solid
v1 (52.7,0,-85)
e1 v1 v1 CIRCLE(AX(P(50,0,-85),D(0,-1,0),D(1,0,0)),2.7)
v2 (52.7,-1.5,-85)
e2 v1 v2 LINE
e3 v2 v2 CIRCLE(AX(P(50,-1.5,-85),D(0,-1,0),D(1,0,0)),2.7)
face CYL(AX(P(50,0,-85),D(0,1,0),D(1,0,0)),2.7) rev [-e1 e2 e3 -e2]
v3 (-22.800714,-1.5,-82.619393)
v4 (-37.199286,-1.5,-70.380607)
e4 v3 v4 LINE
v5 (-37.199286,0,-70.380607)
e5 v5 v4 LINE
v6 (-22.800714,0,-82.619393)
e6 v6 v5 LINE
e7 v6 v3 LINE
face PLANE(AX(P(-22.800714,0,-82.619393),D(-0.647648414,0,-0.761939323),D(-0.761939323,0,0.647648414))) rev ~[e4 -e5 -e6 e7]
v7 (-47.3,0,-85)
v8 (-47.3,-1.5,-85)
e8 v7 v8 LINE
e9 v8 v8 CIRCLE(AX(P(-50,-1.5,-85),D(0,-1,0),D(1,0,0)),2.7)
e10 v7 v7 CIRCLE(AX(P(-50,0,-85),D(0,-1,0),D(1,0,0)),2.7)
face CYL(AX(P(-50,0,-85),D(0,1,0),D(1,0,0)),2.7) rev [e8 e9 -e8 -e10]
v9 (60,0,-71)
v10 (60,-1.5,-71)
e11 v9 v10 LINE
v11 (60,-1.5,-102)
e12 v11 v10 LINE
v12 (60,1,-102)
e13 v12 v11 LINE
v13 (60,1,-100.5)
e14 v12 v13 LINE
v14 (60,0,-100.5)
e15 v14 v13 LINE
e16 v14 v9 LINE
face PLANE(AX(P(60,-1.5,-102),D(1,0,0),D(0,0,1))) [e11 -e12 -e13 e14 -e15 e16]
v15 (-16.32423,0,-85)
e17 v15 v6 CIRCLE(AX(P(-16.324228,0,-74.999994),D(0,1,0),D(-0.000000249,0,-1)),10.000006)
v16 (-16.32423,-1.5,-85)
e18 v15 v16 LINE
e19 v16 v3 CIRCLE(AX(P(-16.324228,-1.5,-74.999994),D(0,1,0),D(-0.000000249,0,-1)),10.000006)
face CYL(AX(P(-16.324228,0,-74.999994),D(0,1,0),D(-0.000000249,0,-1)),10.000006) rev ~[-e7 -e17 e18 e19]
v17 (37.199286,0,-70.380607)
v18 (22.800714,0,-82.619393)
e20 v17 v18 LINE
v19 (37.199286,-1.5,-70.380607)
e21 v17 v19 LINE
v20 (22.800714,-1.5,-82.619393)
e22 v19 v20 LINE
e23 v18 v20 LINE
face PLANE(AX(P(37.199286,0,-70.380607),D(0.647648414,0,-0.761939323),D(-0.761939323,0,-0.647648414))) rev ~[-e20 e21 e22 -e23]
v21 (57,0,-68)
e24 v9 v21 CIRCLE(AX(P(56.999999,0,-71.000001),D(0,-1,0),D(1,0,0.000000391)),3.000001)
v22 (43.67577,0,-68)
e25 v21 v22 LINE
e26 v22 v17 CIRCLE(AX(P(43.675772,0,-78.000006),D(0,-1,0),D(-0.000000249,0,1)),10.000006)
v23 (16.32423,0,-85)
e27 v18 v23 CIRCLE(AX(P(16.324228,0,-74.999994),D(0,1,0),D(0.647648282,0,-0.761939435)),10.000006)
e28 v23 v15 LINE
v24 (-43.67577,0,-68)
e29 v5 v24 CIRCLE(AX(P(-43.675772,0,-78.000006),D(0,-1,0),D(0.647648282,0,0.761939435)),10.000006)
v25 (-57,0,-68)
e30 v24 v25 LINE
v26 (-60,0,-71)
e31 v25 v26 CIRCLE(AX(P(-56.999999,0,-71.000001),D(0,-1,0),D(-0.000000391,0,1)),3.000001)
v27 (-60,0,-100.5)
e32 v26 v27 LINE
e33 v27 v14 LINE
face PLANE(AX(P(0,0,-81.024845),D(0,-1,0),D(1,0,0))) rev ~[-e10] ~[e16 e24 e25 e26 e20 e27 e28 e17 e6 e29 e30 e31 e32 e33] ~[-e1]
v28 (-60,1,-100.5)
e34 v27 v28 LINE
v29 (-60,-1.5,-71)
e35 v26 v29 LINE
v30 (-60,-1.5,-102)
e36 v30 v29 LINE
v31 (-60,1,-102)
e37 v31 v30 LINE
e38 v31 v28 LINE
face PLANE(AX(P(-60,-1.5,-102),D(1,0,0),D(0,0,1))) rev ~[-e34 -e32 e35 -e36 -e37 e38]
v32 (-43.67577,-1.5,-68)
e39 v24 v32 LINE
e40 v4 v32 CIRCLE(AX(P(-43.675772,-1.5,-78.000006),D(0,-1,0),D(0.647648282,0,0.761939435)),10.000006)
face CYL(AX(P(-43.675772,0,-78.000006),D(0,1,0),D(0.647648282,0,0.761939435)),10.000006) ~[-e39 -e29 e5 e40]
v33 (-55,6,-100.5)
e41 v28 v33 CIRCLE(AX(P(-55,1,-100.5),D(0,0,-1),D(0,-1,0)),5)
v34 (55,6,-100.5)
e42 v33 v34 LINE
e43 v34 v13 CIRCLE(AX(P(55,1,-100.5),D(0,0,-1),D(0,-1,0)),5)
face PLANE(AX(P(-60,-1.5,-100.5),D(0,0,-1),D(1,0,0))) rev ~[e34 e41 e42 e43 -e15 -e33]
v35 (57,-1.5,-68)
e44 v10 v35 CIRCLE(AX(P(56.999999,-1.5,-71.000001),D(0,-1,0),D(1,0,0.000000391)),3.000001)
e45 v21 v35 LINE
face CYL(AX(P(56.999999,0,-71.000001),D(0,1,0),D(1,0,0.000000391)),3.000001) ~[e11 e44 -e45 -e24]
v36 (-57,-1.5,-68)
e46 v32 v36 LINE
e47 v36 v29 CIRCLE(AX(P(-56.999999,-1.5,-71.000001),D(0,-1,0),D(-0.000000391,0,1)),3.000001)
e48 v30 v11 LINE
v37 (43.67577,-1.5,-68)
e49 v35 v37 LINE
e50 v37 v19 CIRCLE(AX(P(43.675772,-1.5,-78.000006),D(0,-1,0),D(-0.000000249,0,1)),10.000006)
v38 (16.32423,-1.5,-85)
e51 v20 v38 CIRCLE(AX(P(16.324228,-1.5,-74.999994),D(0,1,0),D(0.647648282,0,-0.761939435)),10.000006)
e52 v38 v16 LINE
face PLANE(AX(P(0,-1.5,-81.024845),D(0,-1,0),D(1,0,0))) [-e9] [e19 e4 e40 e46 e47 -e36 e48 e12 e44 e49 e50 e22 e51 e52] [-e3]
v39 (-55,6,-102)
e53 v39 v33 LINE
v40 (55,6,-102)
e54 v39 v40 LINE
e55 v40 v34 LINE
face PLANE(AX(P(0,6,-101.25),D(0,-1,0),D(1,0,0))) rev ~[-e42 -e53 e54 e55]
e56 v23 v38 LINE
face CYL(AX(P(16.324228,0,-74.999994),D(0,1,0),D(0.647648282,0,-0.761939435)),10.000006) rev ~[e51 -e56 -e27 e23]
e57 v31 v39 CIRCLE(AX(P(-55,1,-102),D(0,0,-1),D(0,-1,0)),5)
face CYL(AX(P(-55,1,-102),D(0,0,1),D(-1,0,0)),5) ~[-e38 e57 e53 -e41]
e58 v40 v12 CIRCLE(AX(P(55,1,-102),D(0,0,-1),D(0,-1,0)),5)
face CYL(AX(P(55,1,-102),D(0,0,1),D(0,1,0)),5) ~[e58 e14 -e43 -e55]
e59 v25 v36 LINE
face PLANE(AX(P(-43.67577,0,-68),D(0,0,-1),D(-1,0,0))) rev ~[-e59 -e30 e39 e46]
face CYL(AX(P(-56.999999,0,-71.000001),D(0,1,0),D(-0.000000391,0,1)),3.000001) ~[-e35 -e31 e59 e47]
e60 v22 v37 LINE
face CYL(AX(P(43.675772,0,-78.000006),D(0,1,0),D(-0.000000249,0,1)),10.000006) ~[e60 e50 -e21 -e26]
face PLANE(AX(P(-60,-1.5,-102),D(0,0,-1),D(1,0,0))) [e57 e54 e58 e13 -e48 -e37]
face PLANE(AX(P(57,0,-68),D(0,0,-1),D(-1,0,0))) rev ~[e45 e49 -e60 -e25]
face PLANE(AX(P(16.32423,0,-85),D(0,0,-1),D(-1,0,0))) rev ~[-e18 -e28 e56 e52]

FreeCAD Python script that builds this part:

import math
import FreeCAD as App
import Part
import Sketcher


def edges_at(feature, points):
    """Names of the edges that pass closest to the given points."""
    edges = feature.Shape.Edges
    near = lambda p: min(range(len(edges)), key=lambda i: edges[i].distToShape(Part.Vertex(*p))[0])
    return sorted({f"Edge{near(p) + 1}" for p in points})


def add_polygon(sketch, points):
    """Adds a closed chain of lines whose ends are joined by coincident constraints."""
    first, n = sketch.GeometryCount, len(points)
    for a, b in zip(points, points[1:] + points[:1]):
        sketch.addGeometry(Part.LineSegment(App.Vector(*a, 0), App.Vector(*b, 0)), False)
    for i in range(n):
        sketch.addConstraint(Sketcher.Constraint("Coincident", first + i, 2, first + (i + 1) % n, 1))

doc = App.newDocument("Part")
params = doc.addObject("Spreadsheet::Sheet", "Params")
for row, (alias, value) in enumerate([
    ("sketch1_radius", "3.000001 mm"),
    ("sketch1_diameter", "5.4 mm"),
    ("sketch1_width", "120 mm"),
    ("sketch1_height", "31 mm"),
    ("pad1_length", "1.5 mm"),
    ("sketch2_width", "120 mm"),
    ("sketch2_height", "1.5 mm"),
    ("pad2_length", "7.5 mm"),
    ("fillet_radius", "5 mm"),
], start=1):
    params.set(f"A{row}", alias)
    params.set(f"B{row}", "=" + value)
    params.setAlias(f"B{row}", alias)

body = doc.addObject("PartDesign::Body", "Body")

# Sketch on XZ plane
sketch1 = body.newObject("Sketcher::SketchObject", "Sketch")
sketch1.AttachmentSupport = (doc.getObject("XZ_Plane"), [""])
sketch1.MapMode = "FlatFace"
sketch1.addGeometry(Part.LineSegment(App.Vector(-60, -71, 0), App.Vector(-60, -102, 0)), False)
sketch1.addGeometry(Part.LineSegment(App.Vector(-60, -102, 0), App.Vector(60, -102, 0)), False)
sketch1.addGeometry(Part.LineSegment(App.Vector(60, -102, 0), App.Vector(60, -71, 0)), False)
sketch1.addGeometry(Part.ArcOfCircle(Part.Circle(App.Vector(57, -71, 0), App.Vector(0, 0, 1), 3), math.radians(0), math.radians(90)), False)
sketch1.addGeometry(Part.LineSegment(App.Vector(57, -68, 0), App.Vector(43.7, -68, 0)), False)
sketch1.addGeometry(Part.ArcOfCircle(Part.Circle(App.Vector(43.7, -78, 0), App.Vector(0, 0, 1), 10), math.radians(90), math.radians(130)), False)
sketch1.addGeometry(Part.LineSegment(App.Vector(37.2, -70.4, 0), App.Vector(22.8, -82.6, 0)), False)
sketch1.addGeometry(Part.ArcOfCircle(Part.Circle(App.Vector(16.3, -75, 0), App.Vector(0, 0, 1), 10), math.radians(-90), math.radians(-50)), False)
sketch1.addGeometry(Part.LineSegment(App.Vector(16.3, -85, 0), App.Vector(-16.3, -85, 0)), False)
sketch1.addGeometry(Part.ArcOfCircle(Part.Circle(App.Vector(-16.3, -75, 0), App.Vector(0, 0, 1), 10), math.radians(-130), math.radians(-90)), False)
sketch1.addGeometry(Part.LineSegment(App.Vector(-22.8, -82.6, 0), App.Vector(-37.2, -70.4, 0)), False)
sketch1.addGeometry(Part.ArcOfCircle(Part.Circle(App.Vector(-43.7, -78, 0), App.Vector(0, 0, 1), 10), math.radians(50), math.radians(90)), False)
sketch1.addGeometry(Part.LineSegment(App.Vector(-43.7, -68, 0), App.Vector(-57, -68, 0)), False)
sketch1.addGeometry(Part.ArcOfCircle(Part.Circle(App.Vector(-57, -71, 0), App.Vector(0, 0, 1), 3), math.radians(90), math.radians(180)), False)
sketch1.addGeometry(Part.Circle(App.Vector(-50, -85, 0), App.Vector(0, 0, 1), 2.7), False)
sketch1.addGeometry(Part.Circle(App.Vector(50, -85, 0), App.Vector(0, 0, 1), 2.7), False)
sketch1.addConstraint(Sketcher.Constraint("Coincident", 0, 2, 1, 1))
sketch1.addConstraint(Sketcher.Constraint("Coincident", 1, 2, 2, 1))
sketch1.addConstraint(Sketcher.Constraint("Tangent", 2, 2, 3, 1))
sketch1.addConstraint(Sketcher.Constraint("Tangent", 3, 2, 4, 1))
sketch1.addConstraint(Sketcher.Constraint("Tangent", 4, 2, 5, 1))
sketch1.addConstraint(Sketcher.Constraint("Tangent", 5, 2, 6, 1))
sketch1.addConstraint(Sketcher.Constraint("Tangent", 6, 2, 7, 2))
sketch1.addConstraint(Sketcher.Constraint("Tangent", 7, 1, 8, 1))
sketch1.addConstraint(Sketcher.Constraint("Tangent", 8, 2, 9, 2))
sketch1.addConstraint(Sketcher.Constraint("Tangent", 9, 1, 10, 1))
sketch1.addConstraint(Sketcher.Constraint("Tangent", 10, 2, 11, 1))
sketch1.addConstraint(Sketcher.Constraint("Tangent", 11, 2, 12, 1))
sketch1.addConstraint(Sketcher.Constraint("Tangent", 12, 2, 13, 1))
sketch1.addConstraint(Sketcher.Constraint("Tangent", 13, 2, 0, 1))
sketch1.addConstraint(Sketcher.Constraint("Vertical", 0))
sketch1.addConstraint(Sketcher.Constraint("Horizontal", 1))
sketch1.addConstraint(Sketcher.Constraint("Vertical", 2))
sketch1.addConstraint(Sketcher.Constraint("Horizontal", 4))
sketch1.addConstraint(Sketcher.Constraint("Horizontal", 8))
sketch1.addConstraint(Sketcher.Constraint("Horizontal", 12))
sketch1.addConstraint(Sketcher.Constraint("Equal", 5, 7))
sketch1.addConstraint(Sketcher.Constraint("Equal", 7, 9))
sketch1.addConstraint(Sketcher.Constraint("Equal", 9, 11))
sketch1.addConstraint(Sketcher.Constraint("Equal", 3, 13))
sketch1.addConstraint(Sketcher.Constraint("Equal", 14, 15))
sketch1.addConstraint(Sketcher.Constraint("Symmetric", 5, 3, 11, 3, -2))
sketch1.addConstraint(Sketcher.Constraint("Symmetric", 14, 3, 15, 3, -2))
sketch1.addConstraint(Sketcher.Constraint("Horizontal", 15, 3, 7, 1))
sketch1.addConstraint(Sketcher.Constraint("Horizontal", 6, 2, 9, 1))
sketch1.addConstraint(Sketcher.Constraint("Equal", 4, 12))
sketch1.addConstraint(Sketcher.Constraint("Radius", 3, 3.000001))
sketch1.addConstraint(Sketcher.Constraint("Diameter", 14, 5.4))
sketch1.addConstraint(Sketcher.Constraint("DistanceX", 1, 1, 1, 2, 120.0))
sketch1.addConstraint(Sketcher.Constraint("DistanceY", 0, 2, 0, 1, 31.0))
sketch1.addConstraint(Sketcher.Constraint("DistanceY", 3, 3, -1, 1, 71.000001))
sketch1.addConstraint(Sketcher.Constraint("DistanceX", 14, 3, -1, 1, 50.0))
sketch1.addConstraint(Sketcher.Constraint("DistanceY", 14, 3, -1, 1, 85.0))
sketch1.addConstraint(Sketcher.Constraint("DistanceX", 9, 3, 5, 3, 60.0))
sketch1.addConstraint(Sketcher.Constraint("Radius", 5, 10.000006))
sketch1.addConstraint(Sketcher.Constraint("DistanceX", 4, 2, 4, 1, 13.32423))
sketch1.setExpression("Constraints[30]", "Params.sketch1_radius")
sketch1.setExpression("Constraints[31]", "Params.sketch1_diameter")
sketch1.setExpression("Constraints[32]", "Params.sketch1_width")
sketch1.setExpression("Constraints[33]", "Params.sketch1_height")
pad1 = body.newObject("PartDesign::Pad", "Pad")
pad1.Profile = sketch1
pad1.setExpression("Length", "Params.pad1_length")

# Sketch on XZ plane
sketch2 = body.newObject("Sketcher::SketchObject", "Sketch001")
sketch2.AttachmentSupport = (doc.getObject("XZ_Plane"), [""])
sketch2.MapMode = "FlatFace"
sketch2.AttachmentOffset = App.Placement(App.Vector(0, 0, 1.5), App.Rotation())
add_polygon(sketch2, [(-60, -100.5), (-60, -102), (60, -102), (60, -100.5)])  # lines 0-3
sketch2.addConstraint(Sketcher.Constraint("Vertical", 0))
sketch2.addConstraint(Sketcher.Constraint("Horizontal", 1))
sketch2.addConstraint(Sketcher.Constraint("Vertical", 2))
sketch2.addConstraint(Sketcher.Constraint("Horizontal", 3))
sketch2.addConstraint(Sketcher.Constraint("DistanceX", 1, 1, 1, 2, 120.0))
sketch2.addConstraint(Sketcher.Constraint("DistanceY", 0, 2, 0, 1, 1.5))
sketch2.addConstraint(Sketcher.Constraint("DistanceX", 0, 2, -1, 1, 60.0))
sketch2.addConstraint(Sketcher.Constraint("DistanceY", 0, 2, -1, 1, 102.0))
sketch2.setExpression("Constraints[8]", "Params.sketch2_width")
sketch2.setExpression("Constraints[9]", "Params.sketch2_height")
pad2 = body.newObject("PartDesign::Pad", "Pad001")
pad2.Profile = sketch2
pad2.setExpression("Length", "Params.pad2_length")
pad2.Reversed = True
doc.recompute()

fillet = body.newObject("PartDesign::Fillet", "Fillet")
fillet.Base = (pad2, edges_at(pad2, [(60, 6, -101.25), (-60, 6, -101.25)]))
fillet.setExpression("Radius", "Params.fillet_radius")

doc.recompute()
